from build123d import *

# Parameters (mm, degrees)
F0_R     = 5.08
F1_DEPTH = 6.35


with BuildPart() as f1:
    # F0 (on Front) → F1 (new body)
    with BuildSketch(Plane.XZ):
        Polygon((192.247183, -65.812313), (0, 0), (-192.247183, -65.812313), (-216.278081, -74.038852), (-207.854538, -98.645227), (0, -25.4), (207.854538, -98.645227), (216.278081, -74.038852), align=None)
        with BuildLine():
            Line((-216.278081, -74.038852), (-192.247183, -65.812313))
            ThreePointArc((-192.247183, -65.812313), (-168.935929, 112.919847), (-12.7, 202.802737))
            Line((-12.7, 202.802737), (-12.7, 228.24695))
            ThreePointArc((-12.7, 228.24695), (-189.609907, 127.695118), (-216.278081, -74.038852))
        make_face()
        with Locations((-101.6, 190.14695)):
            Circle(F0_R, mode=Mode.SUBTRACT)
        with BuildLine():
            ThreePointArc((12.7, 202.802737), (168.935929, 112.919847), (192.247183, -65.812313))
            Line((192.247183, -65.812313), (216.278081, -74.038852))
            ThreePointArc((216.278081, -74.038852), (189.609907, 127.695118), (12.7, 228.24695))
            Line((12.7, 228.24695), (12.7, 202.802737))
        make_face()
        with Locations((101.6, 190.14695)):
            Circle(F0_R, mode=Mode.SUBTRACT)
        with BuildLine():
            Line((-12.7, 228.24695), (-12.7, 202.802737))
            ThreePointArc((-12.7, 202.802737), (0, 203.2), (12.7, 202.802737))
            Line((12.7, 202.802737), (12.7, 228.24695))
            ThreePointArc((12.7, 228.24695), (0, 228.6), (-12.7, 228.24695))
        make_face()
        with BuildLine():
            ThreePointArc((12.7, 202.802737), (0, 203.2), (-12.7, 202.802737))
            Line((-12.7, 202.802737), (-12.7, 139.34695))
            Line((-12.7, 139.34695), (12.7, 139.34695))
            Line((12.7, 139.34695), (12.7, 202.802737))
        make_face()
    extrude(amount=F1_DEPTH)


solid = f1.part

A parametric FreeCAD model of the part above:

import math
import FreeCAD as App
import Part
import Sketcher
Q = App.Units.Quantity

doc = App.newDocument("Part")
body = doc.addObject("PartDesign::Body", "Body")

# Sketch on XZ plane
sketch1 = doc.addObject("Sketcher::SketchObject", "Sketch")
body.addObject(sketch1)
sketch1.AttachmentSupport = (doc.XZ_Plane, [""])
sketch1.MapMode = "FlatFace"
sketch1.addGeometry([
    Part.ArcOfCircle(Part.Circle(App.Vector(0, 0, 0), App.Vector(0, 0, 1), 228.6), math.radians(-18.897703), math.radians(86.815261)),  # 0
    Part.ArcOfCircle(Part.Circle(App.Vector(0, -0.000261, 0), App.Vector(0, 0, 1), 228.600261), math.radians(86.815265), math.radians(93.184735)),  # 1
    Part.ArcOfCircle(Part.Circle(App.Vector(0, 0, 0), App.Vector(0, 0, 1), 228.6), math.radians(93.184739), math.radians(198.897703)),  # 2
    Part.LineSegment(App.Vector(-216.278081, -74.038852, 0), App.Vector(-207.854538, -98.645227, 0)),  # 3
    Part.LineSegment(App.Vector(-207.854538, -98.645227, 0), App.Vector(0, -25.4, 0)),  # 4
    Part.LineSegment(App.Vector(0, -25.4, 0), App.Vector(207.854538, -98.645227, 0)),  # 5
    Part.LineSegment(App.Vector(207.854538, -98.645227, 0), App.Vector(216.278081, -74.038852, 0)),  # 6
    Part.LineSegment(App.Vector(192.247183, -65.812313, 0), App.Vector(0, 0, 0)),  # 7
    Part.LineSegment(App.Vector(0, 0, 0), App.Vector(-192.247183, -65.812313, 0)),  # 8
    Part.ArcOfCircle(Part.Circle(App.Vector(0.000001, 0, 0), App.Vector(0, 0, 1), 203.2), math.radians(93.583322), math.radians(198.897703)),  # 9
    Part.LineSegment(App.Vector(-12.7, 202.802737, 0), App.Vector(-12.7, 139.34695, 0)),  # 10
    Part.LineSegment(App.Vector(-12.7, 139.34695, 0), App.Vector(12.7, 139.34695, 0)),  # 11
    Part.LineSegment(App.Vector(12.7, 139.34695, 0), App.Vector(12.7, 202.802737, 0)),  # 12
    Part.ArcOfCircle(Part.Circle(App.Vector(-0.000001, 0, 0), App.Vector(0, 0, 1), 203.2), math.radians(-18.897703), math.radians(86.416678)),  # 13
    Part.Circle(App.Vector(-101.6, 190.14695, 0), App.Vector(0, 0, 1), 5.08),  # 14
    Part.Circle(App.Vector(101.6, 190.14695, 0), App.Vector(0, 0, 1), 5.08),  # 15
], False)
sketch1.addConstraint([
    Sketcher.Constraint("Coincident", 0, 2, 1, 1),
    Sketcher.Constraint("Coincident", 1, 2, 2, 1),
    Sketcher.Constraint("Coincident", 2, 2, 3, 1),
    Sketcher.Constraint("Coincident", 3, 2, 4, 1),
    Sketcher.Constraint("Coincident", 4, 2, 5, 1),
    Sketcher.Constraint("Coincident", 5, 2, 6, 1),
    Sketcher.Constraint("Coincident", 6, 2, 0, 1),
    Sketcher.Constraint("Coincident", 7, 2, 8, 1),
    Sketcher.Constraint("Coincident", 8, 2, 9, 2),
    Sketcher.Constraint("Coincident", 9, 1, 10, 1),
    Sketcher.Constraint("Coincident", 10, 2, 11, 1),
    Sketcher.Constraint("Coincident", 11, 2, 12, 1),
    Sketcher.Constraint("Coincident", 12, 2, 13, 2),
    Sketcher.Constraint("Coincident", 13, 1, 7, 1),
    Sketcher.Constraint("Vertical", 10),
    Sketcher.Constraint("Horizontal", 11),
    Sketcher.Constraint("Vertical", 12),
    Sketcher.Constraint("Coincident", 0, 3, -1, 1),
    Sketcher.Constraint("Coincident", 2, 3, -1, 1),
    Sketcher.Constraint("Coincident", 9, 3, -1, 1),
    Sketcher.Constraint("Coincident", 13, 3, -1, 1),
    Sketcher.Constraint("Coincident", 7, 2, -1, 1),
    Sketcher.Constraint("PointOnObject", 1, 3, -2),
    Sketcher.Constraint("PointOnObject", 4, 2, -2),
    Sketcher.Constraint("Radius", 0, Q("9 in")),
    Sketcher.Constraint("Radius", 9, Q("8 in")),
    Sketcher.Constraint("Radius", 13, Q("8 in")),
    Sketcher.Constraint("Diameter", 14, Q("0.4 in")),
    Sketcher.Constraint("Diameter", 15, Q("0.4 in")),
    Sketcher.Constraint("DistanceX", 11, 1, 11, 2, Q("1 in")),
    Sketcher.Constraint("DistanceX", 14, 3, -1, 1, Q("4 in")),
    Sketcher.Constraint("DistanceX", -1, 1, 15, 3, Q("4 in")),
    Sketcher.Constraint("DistanceY", 4, 2, -1, 1, Q("1 in")),
    Sketcher.Constraint("DistanceX", 1, 2, 0, 2, Q("1 in")),
    Sketcher.Constraint("DistanceX", 9, 1, 0, 2, Q("1 in")),
    Sketcher.Constraint("DistanceY", 10, 2, 14, 3, Q("2 in")),
    Sketcher.Constraint("DistanceY", 10, 2, 15, 3, Q("2 in")),
    Sketcher.Constraint("DistanceX", 9, 1, -1, 1, Q("0.5 in")),
    Sketcher.Constraint("DistanceY", 15, 3, 0, 2, Q("1.5 in")),
    Sketcher.Constraint("Radius", 1, 228.600261),
    Sketcher.Constraint("Distance", 4, 220.382332),
    Sketcher.Constraint("Distance", 5, 220.382332),
    Sketcher.Constraint("DistanceX", 2, 2, -1, 1, 216.278081),
    Sketcher.Constraint("DistanceX", 3, 2, -1, 1, 207.854538),
    Sketcher.Constraint("DistanceX", -1, 1, 5, 2, 207.854538),
    Sketcher.Constraint("DistanceX", -1, 1, 6, 2, 216.278081),
    Sketcher.Constraint("DistanceY", 2, 2, 8, 2, 8.226539),
    Sketcher.Constraint("DistanceY", 6, 2, 13, 1, 8.226539),
])
pad1 = doc.addObject("PartDesign::Pad", "Pad")
body.addObject(pad1)
pad1.Profile = sketch1
pad1.Length = Q("0.25 in")

doc.recompute()
